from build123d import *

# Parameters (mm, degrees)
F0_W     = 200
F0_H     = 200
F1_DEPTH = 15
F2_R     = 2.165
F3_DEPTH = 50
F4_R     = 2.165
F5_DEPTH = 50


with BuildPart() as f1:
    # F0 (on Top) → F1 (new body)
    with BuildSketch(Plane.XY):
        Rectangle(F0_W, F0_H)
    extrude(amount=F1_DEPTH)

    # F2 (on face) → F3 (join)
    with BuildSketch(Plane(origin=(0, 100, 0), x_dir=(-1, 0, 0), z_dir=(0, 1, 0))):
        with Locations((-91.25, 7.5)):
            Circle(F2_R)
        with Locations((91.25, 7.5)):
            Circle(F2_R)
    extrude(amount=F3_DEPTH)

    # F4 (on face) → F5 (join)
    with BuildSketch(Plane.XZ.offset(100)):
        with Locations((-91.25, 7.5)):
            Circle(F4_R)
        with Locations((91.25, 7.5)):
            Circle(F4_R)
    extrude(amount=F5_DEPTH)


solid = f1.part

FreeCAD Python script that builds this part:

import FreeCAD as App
import Part
import Sketcher

V = App.Vector

doc = App.newDocument("Part")
body = doc.addObject("PartDesign::Body", "Body")

sketch1 = body.newObject("Sketcher::SketchObject", "Sketch")
sketch1.AttachmentSupport = (doc.getObject("XY_Plane"), [""])
sketch1.MapMode = "FlatFace"
sketch1.addGeometry(Part.LineSegment(V(-100, 100, 0), V(-100, -100, 0)), False)
sketch1.addGeometry(Part.LineSegment(V(-100, -100, 0), V(100, -100, 0)), False)
sketch1.addGeometry(Part.LineSegment(V(100, -100, 0), V(100, 100, 0)), False)
sketch1.addGeometry(Part.LineSegment(V(100, 100, 0), V(-100, 100, 0)), False)
sketch1.addConstraint(Sketcher.Constraint("Coincident", 0, 2, 1, 1))
sketch1.addConstraint(Sketcher.Constraint("Coincident", 1, 2, 2, 1))
sketch1.addConstraint(Sketcher.Constraint("Coincident", 2, 2, 3, 1))
sketch1.addConstraint(Sketcher.Constraint("Coincident", 3, 2, 0, 1))
sketch1.addConstraint(Sketcher.Constraint("Vertical", 0))
sketch1.addConstraint(Sketcher.Constraint("Horizontal", 1))
sketch1.addConstraint(Sketcher.Constraint("Vertical", 2))
sketch1.addConstraint(Sketcher.Constraint("Horizontal", 3))
sketch1.addConstraint(Sketcher.Constraint("Symmetric", 0, 2, 2, 2, -1, 1))
sketch1.addConstraint(Sketcher.Constraint("Equal", 3, 0))
sketch1.addConstraint(Sketcher.Constraint("DistanceX", 1, 1, 1, 2, 200.0))
pad1 = body.newObject("PartDesign::Pad", "Pad")
pad1.Profile = sketch1
pad1.Length = 15

sketch2 = body.newObject("Sketcher::SketchObject", "Sketch001")
sketch2.AttachmentSupport = (doc.getObject("XZ_Plane"), [""])
sketch2.MapMode = "FlatFace"
sketch2.AttachmentOffset = App.Placement(V(0, 0, -100), App.Rotation())
sketch2.addGeometry(Part.Circle(V(91.2, 7.5, 0), V(0, 0, 1), 2.2), False)
sketch2.addGeometry(Part.Circle(V(-91.2, 7.5, 0), V(0, 0, 1), 2.2), False)
sketch2.addConstraint(Sketcher.Constraint("Equal", 0, 1))
sketch2.addConstraint(Sketcher.Constraint("Symmetric", 0, 3, 1, 3, -2))
sketch2.addConstraint(Sketcher.Constraint("Diameter", 0, 4.33))
sketch2.addConstraint(Sketcher.Constraint("DistanceY", -1, 1, 0, 3, 7.5))
sketch2.addConstraint(Sketcher.Constraint("DistanceX", 1, 3, 0, 3, 182.5))
pad2 = body.newObject("PartDesign::Pad", "Pad001")
pad2.Profile = sketch2
pad2.Length = 50
pad2.Reversed = True

sketch3 = body.newObject("Sketcher::SketchObject", "Sketch002")
sketch3.AttachmentSupport = (doc.getObject("XZ_Plane"), [""])
sketch3.MapMode = "FlatFace"
sketch3.AttachmentOffset = App.Placement(V(0, 0, 100), App.Rotation())
sketch3.addGeometry(Part.Circle(V(-91.2, 7.5, 0), V(0, 0, 1), 2.2), False)
sketch3.addGeometry(Part.Circle(V(91.2, 7.5, 0), V(0, 0, 1), 2.2), False)
sketch3.addConstraint(Sketcher.Constraint("Equal", 0, 1))
sketch3.addConstraint(Sketcher.Constraint("Symmetric", 0, 3, 1, 3, -2))
sketch3.addConstraint(Sketcher.Constraint("Diameter", 0, 4.33))
sketch3.addConstraint(Sketcher.Constraint("DistanceY", -1, 1, 0, 3, 7.5))
sketch3.addConstraint(Sketcher.Constraint("DistanceX", 0, 3, 1, 3, 182.5))
pad3 = body.newObject("PartDesign::Pad", "Pad002")
pad3.Profile = sketch3
pad3.Length = 50

doc.recompute()
